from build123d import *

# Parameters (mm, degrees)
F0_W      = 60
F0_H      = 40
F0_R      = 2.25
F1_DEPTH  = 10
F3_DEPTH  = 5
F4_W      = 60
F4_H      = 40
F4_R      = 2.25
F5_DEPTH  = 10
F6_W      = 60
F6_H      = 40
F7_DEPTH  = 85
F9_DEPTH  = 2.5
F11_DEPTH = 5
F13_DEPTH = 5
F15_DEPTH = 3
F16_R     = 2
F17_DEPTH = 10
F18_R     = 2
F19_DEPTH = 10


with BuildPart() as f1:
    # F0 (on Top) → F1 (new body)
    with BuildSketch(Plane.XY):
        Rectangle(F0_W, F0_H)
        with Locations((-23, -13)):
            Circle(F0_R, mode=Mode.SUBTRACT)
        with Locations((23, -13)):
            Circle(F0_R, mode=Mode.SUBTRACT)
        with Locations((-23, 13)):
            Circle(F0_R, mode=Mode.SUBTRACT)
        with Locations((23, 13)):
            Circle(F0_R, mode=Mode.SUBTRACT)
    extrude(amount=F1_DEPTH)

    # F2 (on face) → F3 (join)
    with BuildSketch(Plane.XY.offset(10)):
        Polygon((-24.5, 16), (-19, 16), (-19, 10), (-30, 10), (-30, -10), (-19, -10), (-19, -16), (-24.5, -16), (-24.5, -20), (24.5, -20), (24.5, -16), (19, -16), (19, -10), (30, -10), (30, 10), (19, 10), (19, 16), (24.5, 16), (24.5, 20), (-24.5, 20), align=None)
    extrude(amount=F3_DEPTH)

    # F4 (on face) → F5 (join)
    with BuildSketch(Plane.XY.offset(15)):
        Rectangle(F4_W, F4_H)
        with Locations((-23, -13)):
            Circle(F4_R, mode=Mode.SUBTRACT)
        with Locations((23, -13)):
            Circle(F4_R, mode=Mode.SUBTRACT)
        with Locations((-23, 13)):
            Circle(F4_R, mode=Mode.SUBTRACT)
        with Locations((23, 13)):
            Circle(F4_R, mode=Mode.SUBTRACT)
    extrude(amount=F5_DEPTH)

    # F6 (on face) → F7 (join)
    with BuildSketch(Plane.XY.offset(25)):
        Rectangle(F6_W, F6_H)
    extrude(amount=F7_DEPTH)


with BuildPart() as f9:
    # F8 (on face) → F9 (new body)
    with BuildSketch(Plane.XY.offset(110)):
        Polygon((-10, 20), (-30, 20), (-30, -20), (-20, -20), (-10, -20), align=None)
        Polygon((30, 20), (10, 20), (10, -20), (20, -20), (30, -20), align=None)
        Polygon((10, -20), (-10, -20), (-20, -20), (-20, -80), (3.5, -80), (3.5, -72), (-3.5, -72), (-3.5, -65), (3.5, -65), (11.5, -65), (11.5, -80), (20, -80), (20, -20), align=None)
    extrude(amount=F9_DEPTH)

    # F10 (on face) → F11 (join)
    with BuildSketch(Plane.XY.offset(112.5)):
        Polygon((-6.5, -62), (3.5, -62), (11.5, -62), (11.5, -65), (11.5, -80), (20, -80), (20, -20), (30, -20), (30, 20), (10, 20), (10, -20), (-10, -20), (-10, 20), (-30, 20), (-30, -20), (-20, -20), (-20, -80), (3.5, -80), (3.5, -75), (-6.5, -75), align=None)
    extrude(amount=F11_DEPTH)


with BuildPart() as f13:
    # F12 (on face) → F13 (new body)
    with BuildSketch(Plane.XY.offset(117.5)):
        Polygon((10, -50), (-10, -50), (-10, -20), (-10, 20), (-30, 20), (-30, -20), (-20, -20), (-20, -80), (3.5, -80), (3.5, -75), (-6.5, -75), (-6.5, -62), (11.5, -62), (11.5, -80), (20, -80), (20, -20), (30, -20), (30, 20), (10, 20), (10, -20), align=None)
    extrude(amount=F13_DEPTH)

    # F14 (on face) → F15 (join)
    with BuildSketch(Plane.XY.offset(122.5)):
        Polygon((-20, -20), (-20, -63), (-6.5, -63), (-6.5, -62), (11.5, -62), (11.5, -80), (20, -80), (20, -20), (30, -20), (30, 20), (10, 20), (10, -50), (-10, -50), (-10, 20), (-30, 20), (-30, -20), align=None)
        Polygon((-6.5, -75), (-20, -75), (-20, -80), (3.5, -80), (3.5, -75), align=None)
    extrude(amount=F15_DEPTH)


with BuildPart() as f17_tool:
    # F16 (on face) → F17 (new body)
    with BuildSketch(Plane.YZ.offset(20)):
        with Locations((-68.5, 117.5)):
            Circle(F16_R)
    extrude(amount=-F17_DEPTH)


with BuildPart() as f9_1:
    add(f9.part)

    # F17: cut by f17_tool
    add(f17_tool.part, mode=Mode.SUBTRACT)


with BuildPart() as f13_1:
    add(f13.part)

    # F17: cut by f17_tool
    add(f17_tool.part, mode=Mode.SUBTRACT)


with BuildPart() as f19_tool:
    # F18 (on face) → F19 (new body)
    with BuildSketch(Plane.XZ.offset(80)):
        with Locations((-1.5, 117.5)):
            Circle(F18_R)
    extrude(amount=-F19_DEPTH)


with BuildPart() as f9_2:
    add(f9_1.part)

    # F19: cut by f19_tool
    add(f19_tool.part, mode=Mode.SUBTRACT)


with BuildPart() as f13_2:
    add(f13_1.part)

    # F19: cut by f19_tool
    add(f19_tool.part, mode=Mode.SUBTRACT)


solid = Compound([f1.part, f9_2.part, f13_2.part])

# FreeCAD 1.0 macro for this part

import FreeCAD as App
import Part
import Sketcher

V = App.Vector


def add_polygon(sketch, points):
    """Adds a closed chain of lines whose ends are joined by coincident constraints."""
    first, n = sketch.GeometryCount, len(points)
    for a, b in zip(points, points[1:] + points[:1]):
        sketch.addGeometry(Part.LineSegment(App.Vector(*a, 0), App.Vector(*b, 0)), False)
    for i in range(n):
        sketch.addConstraint(Sketcher.Constraint("Coincident", first + i, 2, first + (i + 1) % n, 1))

doc = App.newDocument("Part")
params = doc.addObject("Spreadsheet::Sheet", "Params")
for row, (alias, value) in enumerate([
    ("sketch1_diameter", "4.5 mm"),
    ("sketch1_width", "60 mm"),
    ("sketch1_height", "40 mm"),
    ("pad1_length", "10 mm"),
    ("sketch2_width", "11 mm"),
    ("sketch2_width2", "49 mm"),
    ("sketch2_height", "6 mm"),
    ("sketch2_height2", "20 mm"),
    ("sketch2_height3", "4 mm"),
    ("pad2_length", "5 mm"),
    ("sketch3_diameter", "4.5 mm"),
    ("sketch3_width", "60 mm"),
    ("sketch3_height", "40 mm"),
    ("pad3_length", "10 mm"),
    ("sketch4_width", "60 mm"),
    ("sketch4_height", "40 mm"),
    ("pad4_length", "85 mm"),
    ("sketch5_width", "20 mm"),
    ("sketch5_width2", "10 mm"),
    ("sketch5_width3", "7 mm"),
    ("sketch5_width4", "15 mm"),
    ("sketch5_height", "40 mm"),
    ("pad5_length", "2.5 mm"),
    ("sketch6_width", "18 mm"),
    ("sketch6_width2", "10 mm"),
    ("sketch6_width3", "20 mm"),
    ("sketch6_height", "60 mm"),
    ("sketch6_height2", "40 mm"),
    ("pad6_length", "5 mm"),
    ("sketch7_width", "20 mm"),
    ("sketch7_width2", "10 mm"),
    ("sketch7_width3", "18 mm"),
    ("sketch7_height", "70 mm"),
    ("sketch7_height2", "40 mm"),
    ("pad7_length", "5 mm"),
    ("sketch8_width", "18 mm"),
    ("sketch8_width2", "10 mm"),
    ("sketch8_width3", "20 mm"),
    ("sketch8_height", "43 mm"),
    ("sketch8_height2", "1 mm"),
    ("pad8_length", "3 mm"),
    ("sketch9_diameter", "4 mm"),
    ("pad9_length", "10 mm"),
    ("sketch10_diameter", "4 mm"),
    ("pad10_length", "10 mm"),
], start=1):
    params.set(f"A{row}", alias)
    params.set(f"B{row}", "=" + value)
    params.setAlias(f"B{row}", alias)

body = doc.addObject("PartDesign::Body", "Body")

sketch1 = body.newObject("Sketcher::SketchObject", "Sketch")
sketch1.AttachmentSupport = (doc.getObject("XY_Plane"), [""])
sketch1.MapMode = "FlatFace"
add_polygon(sketch1, [(-30, 20), (-30, -20), (30, -20), (30, 20)])
sketch1.addGeometry(Part.Circle(V(-23, -13, 0), V(0, 0, 1), 2.2), False)
sketch1.addGeometry(Part.Circle(V(23, -13, 0), V(0, 0, 1), 2.2), False)
sketch1.addGeometry(Part.Circle(V(-23, 13, 0), V(0, 0, 1), 2.2), False)
sketch1.addGeometry(Part.Circle(V(23, 13, 0), V(0, 0, 1), 2.2), False)
sketch1.addConstraint([
    Sketcher.Constraint("Vertical", 0),
    Sketcher.Constraint("Horizontal", 1),
    Sketcher.Constraint("Vertical", 2),
    Sketcher.Constraint("Horizontal", 3),
    Sketcher.Constraint("Equal", 4, 5),
    Sketcher.Constraint("Equal", 5, 6),
    Sketcher.Constraint("Equal", 6, 7),
    Sketcher.Constraint("Symmetric", 5, 3, 6, 3, -1, 1),
    Sketcher.Constraint("Symmetric", 4, 3, 7, 3, -1, 1),
    Sketcher.Constraint("Symmetric", 0, 2, 2, 2, -1, 1),
    Sketcher.Constraint("Symmetric", 4, 3, 5, 3, -2),
    Sketcher.Constraint("Diameter", 4, 4.5),
    Sketcher.Constraint("DistanceX", 1, 1, 1, 2, 60.0),
    Sketcher.Constraint("DistanceY", 0, 2, 0, 1, 40.0),
    Sketcher.Constraint("DistanceX", 4, 3, -1, 1, 23.0),
    Sketcher.Constraint("DistanceY", 4, 3, -1, 1, 13.0),
])
sketch1.setExpression("Constraints[15]", "Params.sketch1_diameter")
sketch1.setExpression("Constraints[16]", "Params.sketch1_width")
sketch1.setExpression("Constraints[17]", "Params.sketch1_height")
pad1 = body.newObject("PartDesign::Pad", "Pad")
pad1.Profile = sketch1
pad1.setExpression("Length", "Params.pad1_length")

sketch2 = body.newObject("Sketcher::SketchObject", "Sketch001")
sketch2.AttachmentSupport = (doc.getObject("XY_Plane"), [""])
sketch2.MapMode = "FlatFace"
sketch2.AttachmentOffset = App.Placement(V(0, 0, 10), App.Rotation())
add_polygon(sketch2, [(-24.5, 16), (-19, 16), (-19, 10), (-30, 10), (-30, -10), (-19, -10), (-19, -16), (-24.5, -16), (-24.5, -20), (24.5, -20), (24.5, -16), (19, -16), (19, -10), (30, -10), (30, 10), (19, 10), (19, 16), (24.5, 16), (24.5, 20), (-24.5, 20)])
sketch2.addConstraint([
    Sketcher.Constraint("Horizontal", 0),
    Sketcher.Constraint("Vertical", 1),
    Sketcher.Constraint("Horizontal", 2),
    Sketcher.Constraint("Vertical", 3),
    Sketcher.Constraint("Horizontal", 4),
    Sketcher.Constraint("Vertical", 5),
    Sketcher.Constraint("Horizontal", 6),
    Sketcher.Constraint("Vertical", 7),
    Sketcher.Constraint("Horizontal", 8),
    Sketcher.Constraint("Vertical", 9),
    Sketcher.Constraint("Horizontal", 10),
    Sketcher.Constraint("Vertical", 11),
    Sketcher.Constraint("Horizontal", 12),
    Sketcher.Constraint("Vertical", 13),
    Sketcher.Constraint("Horizontal", 14),
    Sketcher.Constraint("Vertical", 15),
    Sketcher.Constraint("Horizontal", 16),
    Sketcher.Constraint("Vertical", 17),
    Sketcher.Constraint("Horizontal", 18),
    Sketcher.Constraint("Vertical", 19),
    Sketcher.Constraint("Symmetric", 0, 2, 10, 2, -1, 1),
    Sketcher.Constraint("Symmetric", 2, 2, 12, 2, -1, 1),
    Sketcher.Constraint("Symmetric", 4, 2, 14, 2, -1, 1),
    Sketcher.Constraint("Symmetric", 6, 2, 16, 2, -1, 1),
    Sketcher.Constraint("Symmetric", 8, 2, 18, 2, -1, 1),
    Sketcher.Constraint("Symmetric", 6, 2, 9, 2, -2),
    Sketcher.Constraint("Symmetric", 4, 2, 11, 2, -2),
    Sketcher.Constraint("DistanceX", 2, 2, 2, 1, 11.0),
    Sketcher.Constraint("DistanceX", 8, 1, 8, 2, 49.0),
    Sketcher.Constraint("DistanceY", 1, 2, 1, 1, 6.0),
    Sketcher.Constraint("DistanceY", 3, 2, 3, 1, 20.0),
    Sketcher.Constraint("DistanceY", 7, 2, 7, 1, 4.0),
    Sketcher.Constraint("DistanceX", 0, 1, 0, 2, 5.5),
])
sketch2.setExpression("Constraints[47]", "Params.sketch2_width")
sketch2.setExpression("Constraints[48]", "Params.sketch2_width2")
sketch2.setExpression("Constraints[49]", "Params.sketch2_height")
sketch2.setExpression("Constraints[50]", "Params.sketch2_height2")
sketch2.setExpression("Constraints[51]", "Params.sketch2_height3")
pad2 = body.newObject("PartDesign::Pad", "Pad001")
pad2.Profile = sketch2
pad2.setExpression("Length", "Params.pad2_length")

sketch3 = body.newObject("Sketcher::SketchObject", "Sketch002")
sketch3.AttachmentSupport = (doc.getObject("XY_Plane"), [""])
sketch3.MapMode = "FlatFace"
sketch3.AttachmentOffset = App.Placement(V(0, 0, 15), App.Rotation())
add_polygon(sketch3, [(-30, 20), (-30, -20), (30, -20), (30, 20)])
sketch3.addGeometry(Part.Circle(V(-23, -13, 0), V(0, 0, 1), 2.2), False)
sketch3.addGeometry(Part.Circle(V(23, -13, 0), V(0, 0, 1), 2.2), False)
sketch3.addGeometry(Part.Circle(V(-23, 13, 0), V(0, 0, 1), 2.2), False)
sketch3.addGeometry(Part.Circle(V(23, 13, 0), V(0, 0, 1), 2.2), False)
sketch3.addConstraint([
    Sketcher.Constraint("Vertical", 0),
    Sketcher.Constraint("Horizontal", 1),
    Sketcher.Constraint("Vertical", 2),
    Sketcher.Constraint("Horizontal", 3),
    Sketcher.Constraint("Equal", 4, 5),
    Sketcher.Constraint("Equal", 5, 6),
    Sketcher.Constraint("Equal", 6, 7),
    Sketcher.Constraint("Symmetric", 5, 3, 6, 3, -1, 1),
    Sketcher.Constraint("Symmetric", 4, 3, 7, 3, -1, 1),
    Sketcher.Constraint("Symmetric", 0, 2, 2, 2, -1, 1),
    Sketcher.Constraint("Symmetric", 4, 3, 5, 3, -2),
    Sketcher.Constraint("Diameter", 4, 4.5),
    Sketcher.Constraint("DistanceX", 1, 1, 1, 2, 60.0),
    Sketcher.Constraint("DistanceY", 0, 2, 0, 1, 40.0),
    Sketcher.Constraint("DistanceX", 4, 3, -1, 1, 23.0),
    Sketcher.Constraint("DistanceY", 4, 3, -1, 1, 13.0),
])
sketch3.setExpression("Constraints[15]", "Params.sketch3_diameter")
sketch3.setExpression("Constraints[16]", "Params.sketch3_width")
sketch3.setExpression("Constraints[17]", "Params.sketch3_height")
pad3 = body.newObject("PartDesign::Pad", "Pad002")
pad3.Profile = sketch3
pad3.setExpression("Length", "Params.pad3_length")

sketch4 = body.newObject("Sketcher::SketchObject", "Sketch003")
sketch4.AttachmentSupport = (doc.getObject("XY_Plane"), [""])
sketch4.MapMode = "FlatFace"
sketch4.AttachmentOffset = App.Placement(V(0, 0, 25), App.Rotation())
add_polygon(sketch4, [(-30, 20), (-30, -20), (30, -20), (30, 20)])
sketch4.addConstraint([
    Sketcher.Constraint("Vertical", 0),
    Sketcher.Constraint("Horizontal", 1),
    Sketcher.Constraint("Vertical", 2),
    Sketcher.Constraint("Horizontal", 3),
    Sketcher.Constraint("Symmetric", 0, 2, 2, 2, -1, 1),
    Sketcher.Constraint("DistanceX", 1, 1, 1, 2, 60.0),
    Sketcher.Constraint("DistanceY", 0, 2, 0, 1, 40.0),
])
sketch4.setExpression("Constraints[9]", "Params.sketch4_width")
sketch4.setExpression("Constraints[10]", "Params.sketch4_height")
pad4 = body.newObject("PartDesign::Pad", "Pad003")
pad4.Profile = sketch4
pad4.setExpression("Length", "Params.pad4_length")
body2 = doc.addObject("PartDesign::Body", "Body001")

sketch5 = body2.newObject("Sketcher::SketchObject", "Sketch004")
sketch5.AttachmentSupport = (doc.getObject("XY_Plane001"), [""])
sketch5.MapMode = "FlatFace"
sketch5.AttachmentOffset = App.Placement(V(0, 0, 110), App.Rotation())
add_polygon(sketch5, [(-10, 20), (-30, 20), (-30, -20), (-20, -20), (-20, -80), (4, -80), (4, -72), (-4, -72), (-4, -65), (12, -65), (12, -80), (20, -80), (20, -20), (30, -20), (30, 20), (10, 20), (10, -20), (-10, -20)])
sketch5.addConstraint([
    Sketcher.Constraint("Horizontal", 0),
    Sketcher.Constraint("Vertical", 1),
    Sketcher.Constraint("Horizontal", 2),
    Sketcher.Constraint("Vertical", 3),
    Sketcher.Constraint("Horizontal", 4),
    Sketcher.Constraint("Vertical", 5),
    Sketcher.Constraint("Horizontal", 6),
    Sketcher.Constraint("Vertical", 7),
    Sketcher.Constraint("Horizontal", 8),
    Sketcher.Constraint("Vertical", 9),
    Sketcher.Constraint("Horizontal", 10),
    Sketcher.Constraint("Vertical", 11),
    Sketcher.Constraint("Horizontal", 12),
    Sketcher.Constraint("Vertical", 13),
    Sketcher.Constraint("Horizontal", 14),
    Sketcher.Constraint("Vertical", 15),
    Sketcher.Constraint("Horizontal", 16),
    Sketcher.Constraint("Vertical", 17),
    Sketcher.Constraint("Symmetric", 0, 2, 12, 2, -1, 1),
    Sketcher.Constraint("Symmetric", 14, 2, 16, 2, -1, 1),
    Sketcher.Constraint("Symmetric", 3, 2, 10, 2, -2),
    Sketcher.Constraint("Horizontal", 2, 2, 11, 2),
    Sketcher.Constraint("Horizontal", 0, 2, 13, 2),
    Sketcher.Constraint("Equal", 14, 16),
    Sketcher.Constraint("Equal", 6, 7),
    Sketcher.Constraint("Equal", 8, 9),
    Sketcher.Constraint("DistanceX", 0, 2, 0, 1, 20.0),
    Sketcher.Constraint("DistanceX", 2, 1, 2, 2, 10.0),
    Sketcher.Constraint("DistanceX", 6, 2, 6, 1, 7.0),
    Sketcher.Constraint("DistanceX", 8, 1, 8, 2, 15.0),
    Sketcher.Constraint("DistanceY", 1, 2, 1, 1, 40.0),
    Sketcher.Constraint("DistanceY", 3, 2, 3, 1, 60.0),
    Sketcher.Constraint("DistanceX", 4, 1, 4, 2, 23.5),
])
sketch5.setExpression("Constraints[44]", "Params.sketch5_width")
sketch5.setExpression("Constraints[45]", "Params.sketch5_width2")
sketch5.setExpression("Constraints[46]", "Params.sketch5_width3")
sketch5.setExpression("Constraints[47]", "Params.sketch5_width4")
sketch5.setExpression("Constraints[48]", "Params.sketch5_height")
pad5 = body2.newObject("PartDesign::Pad", "Pad004")
pad5.Profile = sketch5
pad5.setExpression("Length", "Params.pad5_length")

sketch6 = body2.newObject("Sketcher::SketchObject", "Sketch005")
sketch6.AttachmentSupport = (doc.getObject("XY_Plane001"), [""])
sketch6.MapMode = "FlatFace"
sketch6.AttachmentOffset = App.Placement(V(0, 0, 112.5), App.Rotation())
add_polygon(sketch6, [(-6, -62), (12, -62), (12, -80), (20, -80), (20, -20), (30, -20), (30, 20), (10, 20), (10, -20), (-10, -20), (-10, 20), (-30, 20), (-30, -20), (-20, -20), (-20, -80), (4, -80), (4, -75), (-6, -75)])
sketch6.addConstraint([
    Sketcher.Constraint("Horizontal", 0),
    Sketcher.Constraint("Vertical", 1),
    Sketcher.Constraint("Horizontal", 2),
    Sketcher.Constraint("Vertical", 3),
    Sketcher.Constraint("Horizontal", 4),
    Sketcher.Constraint("Vertical", 5),
    Sketcher.Constraint("Horizontal", 6),
    Sketcher.Constraint("Vertical", 7),
    Sketcher.Constraint("Horizontal", 8),
    Sketcher.Constraint("Vertical", 9),
    Sketcher.Constraint("Horizontal", 10),
    Sketcher.Constraint("Vertical", 11),
    Sketcher.Constraint("Horizontal", 12),
    Sketcher.Constraint("Vertical", 13),
    Sketcher.Constraint("Horizontal", 14),
    Sketcher.Constraint("Vertical", 15),
    Sketcher.Constraint("Horizontal", 16),
    Sketcher.Constraint("Vertical", 17),
    Sketcher.Constraint("Symmetric", 6, 2, 8, 2, -1, 1),
    Sketcher.Constraint("Symmetric", 4, 2, 10, 2, -1, 1),
    Sketcher.Constraint("Symmetric", 3, 2, 12, 2, -2),
    Sketcher.Constraint("Horizontal", 4, 2, 7, 2),
    Sketcher.Constraint("Horizontal", 2, 2, 13, 2),
    Sketcher.Constraint("Equal", 6, 8),
    Sketcher.Constraint("Equal", 12, 16),
    Sketcher.Constraint("Equal", 0, 1),
    Sketcher.Constraint("DistanceX", 0, 1, 0, 2, 18.0),
    Sketcher.Constraint("DistanceX", 4, 1, 4, 2, 10.0),
    Sketcher.Constraint("DistanceX", 6, 2, 6, 1, 20.0),
    Sketcher.Constraint("DistanceY", 3, 1, 3, 2, 60.0),
    Sketcher.Constraint("DistanceY", 5, 1, 5, 2, 40.0),
    Sketcher.Constraint("DistanceY", 15, 1, 15, 2, 5.0),
    Sketcher.Constraint("DistanceX", 2, 1, 2, 2, 8.5),
])
sketch6.setExpression("Constraints[44]", "Params.sketch6_width")
sketch6.setExpression("Constraints[45]", "Params.sketch6_width2")
sketch6.setExpression("Constraints[46]", "Params.sketch6_width3")
sketch6.setExpression("Constraints[47]", "Params.sketch6_height")
sketch6.setExpression("Constraints[48]", "Params.sketch6_height2")
pad6 = body2.newObject("PartDesign::Pad", "Pad005")
pad6.Profile = sketch6
pad6.setExpression("Length", "Params.pad6_length")
body3 = doc.addObject("PartDesign::Body", "Body002")

sketch7 = body3.newObject("Sketcher::SketchObject", "Sketch006")
sketch7.AttachmentSupport = (doc.getObject("XY_Plane002"), [""])
sketch7.MapMode = "FlatFace"
sketch7.AttachmentOffset = App.Placement(V(0, 0, 117.5), App.Rotation())
add_polygon(sketch7, [(10, -50), (-10, -50), (-10, 20), (-30, 20), (-30, -20), (-20, -20), (-20, -80), (4, -80), (4, -75), (-6, -75), (-6, -62), (12, -62), (12, -80), (20, -80), (20, -20), (30, -20), (30, 20), (10, 20)])
sketch7.addConstraint([
    Sketcher.Constraint("Horizontal", 0),
    Sketcher.Constraint("Vertical", 1),
    Sketcher.Constraint("Horizontal", 2),
    Sketcher.Constraint("Vertical", 3),
    Sketcher.Constraint("Horizontal", 4),
    Sketcher.Constraint("Vertical", 5),
    Sketcher.Constraint("Horizontal", 6),
    Sketcher.Constraint("Vertical", 7),
    Sketcher.Constraint("Horizontal", 8),
    Sketcher.Constraint("Vertical", 9),
    Sketcher.Constraint("Horizontal", 10),
    Sketcher.Constraint("Vertical", 11),
    Sketcher.Constraint("Horizontal", 12),
    Sketcher.Constraint("Vertical", 13),
    Sketcher.Constraint("Horizontal", 14),
    Sketcher.Constraint("Vertical", 15),
    Sketcher.Constraint("Horizontal", 16),
    Sketcher.Constraint("Vertical", 17),
    Sketcher.Constraint("Symmetric", 2, 2, 14, 2, -1, 1),
    Sketcher.Constraint("Symmetric", 5, 2, 12, 2, -2),
    Sketcher.Constraint("Symmetric", 1, 2, 16, 2, -2),
    Sketcher.Constraint("Horizontal", 4, 2, 13, 2),
    Sketcher.Constraint("Equal", 0, 2),
    Sketcher.Constraint("Equal", 4, 8),
    Sketcher.Constraint("Equal", 10, 11),
    Sketcher.Constraint("DistanceX", 0, 2, 0, 1, 20.0),
    Sketcher.Constraint("DistanceX", 4, 1, 4, 2, 10.0),
    Sketcher.Constraint("DistanceX", 10, 1, 10, 2, 18.0),
    Sketcher.Constraint("DistanceY", 1, 1, 1, 2, 70.0),
    Sketcher.Constraint("DistanceY", 3, 2, 3, 1, 40.0),
    Sketcher.Constraint("DistanceY", 5, 2, 5, 1, 60.0),
    Sketcher.Constraint("DistanceY", 7, 1, 7, 2, 5.0),
    Sketcher.Constraint("DistanceX", 6, 1, 6, 2, 23.5),
])
sketch7.setExpression("Constraints[43]", "Params.sketch7_width")
sketch7.setExpression("Constraints[44]", "Params.sketch7_width2")
sketch7.setExpression("Constraints[45]", "Params.sketch7_width3")
sketch7.setExpression("Constraints[46]", "Params.sketch7_height")
sketch7.setExpression("Constraints[47]", "Params.sketch7_height2")
pad7 = body3.newObject("PartDesign::Pad", "Pad006")
pad7.Profile = sketch7
pad7.setExpression("Length", "Params.pad7_length")

sketch8 = body3.newObject("Sketcher::SketchObject", "Sketch007")
sketch8.AttachmentSupport = (doc.getObject("XY_Plane002"), [""])
sketch8.MapMode = "FlatFace"
sketch8.AttachmentOffset = App.Placement(V(0, 0, 122.5), App.Rotation())
add_polygon(sketch8, [(-20, -20), (-20, -63), (-6.5, -63), (-6.5, -62), (11.5, -62), (11.5, -80), (20, -80), (20, -20), (30, -20), (30, 20), (10, 20), (10, -50), (-10, -50), (-10, 20), (-30, 20), (-30, -20)])
add_polygon(sketch8, [(-20, -75), (-20, -80), (3.5, -80), (3.5, -75)])
sketch8.addConstraint([
    Sketcher.Constraint("Vertical", 0),
    Sketcher.Constraint("Horizontal", 1),
    Sketcher.Constraint("Vertical", 2),
    Sketcher.Constraint("Horizontal", 3),
    Sketcher.Constraint("Vertical", 4),
    Sketcher.Constraint("Horizontal", 5),
    Sketcher.Constraint("Vertical", 6),
    Sketcher.Constraint("Horizontal", 7),
    Sketcher.Constraint("Vertical", 8),
    Sketcher.Constraint("Horizontal", 9),
    Sketcher.Constraint("Vertical", 10),
    Sketcher.Constraint("Horizontal", 11),
    Sketcher.Constraint("Vertical", 12),
    Sketcher.Constraint("Horizontal", 13),
    Sketcher.Constraint("Vertical", 14),
    Sketcher.Constraint("Horizontal", 15),
    Sketcher.Constraint("Vertical", 16),
    Sketcher.Constraint("Horizontal", 17),
    Sketcher.Constraint("Vertical", 18),
    Sketcher.Constraint("Horizontal", 19),
    Sketcher.Constraint("Symmetric", 7, 2, 13, 2, -1, 1),
    Sketcher.Constraint("Symmetric", 9, 2, 12, 2, -2),
    Sketcher.Constraint("Symmetric", 6, 2, 15, 2, -2),
    Sketcher.Constraint("Symmetric", 5, 2, 16, 2, -2),
    Sketcher.Constraint("Equal", 9, 11),
    Sketcher.Constraint("Equal", 3, 4),
    Sketcher.Constraint("DistanceX", 3, 1, 3, 2, 18.0),
    Sketcher.Constraint("DistanceX", 7, 1, 7, 2, 10.0),
    Sketcher.Constraint("DistanceX", 9, 2, 9, 1, 20.0),
    Sketcher.Constraint("DistanceY", 0, 2, 0, 1, 43.0),
    Sketcher.Constraint("DistanceY", 2, 1, 2, 2, 1.0),
    Sketcher.Constraint("DistanceY", 8, 1, 8, 2, 40.0),
    Sketcher.Constraint("DistanceY", 10, 2, 10, 1, 70.0),
    Sketcher.Constraint("DistanceY", 16, 2, 16, 1, 5.0),
    Sketcher.Constraint("DistanceX", 1, 1, 1, 2, 13.5),
    Sketcher.Constraint("DistanceX", 17, 1, 17, 2, 23.5),
])
sketch8.setExpression("Constraints[46]", "Params.sketch8_width")
sketch8.setExpression("Constraints[47]", "Params.sketch8_width2")
sketch8.setExpression("Constraints[48]", "Params.sketch8_width3")
sketch8.setExpression("Constraints[49]", "Params.sketch8_height")
sketch8.setExpression("Constraints[50]", "Params.sketch8_height2")
pad8 = body3.newObject("PartDesign::Pad", "Pad007")
pad8.Profile = sketch8
pad8.setExpression("Length", "Params.pad8_length")
body4 = doc.addObject("PartDesign::Body", "Body003")

sketch9 = body4.newObject("Sketcher::SketchObject", "Sketch008")
sketch9.AttachmentSupport = (doc.getObject("YZ_Plane003"), [""])
sketch9.MapMode = "FlatFace"
sketch9.AttachmentOffset = App.Placement(V(0, 0, 20), App.Rotation())
sketch9.addGeometry(Part.Circle(V(-68.5, 117.5, 0), V(0, 0, 1), 2), False)
sketch9.addConstraint([
    Sketcher.Constraint("Diameter", 0, 4.0),
    Sketcher.Constraint("DistanceX", 0, 3, -1, 1, 68.5),
    Sketcher.Constraint("DistanceY", -1, 1, 0, 3, 117.5),
])
sketch9.setExpression("Constraints[0]", "Params.sketch9_diameter")
pad9 = body4.newObject("PartDesign::Pad", "Pad008")
pad9.Profile = sketch9
pad9.setExpression("Length", "Params.pad9_length")
pad9.Reversed = True
doc.recompute()

body5 = doc.addObject("PartDesign::Body", "Body004")
body5.BaseFeature = body4
boolean = body2.newObject("PartDesign::Boolean", "Boolean")
boolean.Type = "Cut"
boolean.addObjects([body5])
doc.recompute()

boolean2 = body3.newObject("PartDesign::Boolean", "Boolean001")
boolean2.Type = "Cut"
boolean2.addObjects([body4])
body6 = doc.addObject("PartDesign::Body", "Body005")

sketch10 = body6.newObject("Sketcher::SketchObject", "Sketch009")
sketch10.AttachmentSupport = (doc.getObject("XZ_Plane005"), [""])
sketch10.MapMode = "FlatFace"
sketch10.AttachmentOffset = App.Placement(V(0, 0, 80), App.Rotation())
sketch10.addGeometry(Part.Circle(V(-1.5, 117.5, 0), V(0, 0, 1), 2), False)
sketch10.addConstraint([
    Sketcher.Constraint("Diameter", 0, 4.0),
    Sketcher.Constraint("DistanceX", 0, 3, -1, 1, 1.5),
    Sketcher.Constraint("DistanceY", -1, 1, 0, 3, 117.5),
])
sketch10.setExpression("Constraints[0]", "Params.sketch10_diameter")
pad10 = body6.newObject("PartDesign::Pad", "Pad009")
pad10.Profile = sketch10
pad10.setExpression("Length", "Params.pad10_length")
pad10.Reversed = True
doc.recompute()

body7 = doc.addObject("PartDesign::Body", "Body006")
body7.BaseFeature = body6
boolean3 = body2.newObject("PartDesign::Boolean", "Boolean002")
boolean3.Type = "Cut"
boolean3.addObjects([body7])
doc.recompute()

boolean4 = body3.newObject("PartDesign::Boolean", "Boolean003")
boolean4.Type = "Cut"
boolean4.addObjects([body6])

doc.recompute()
